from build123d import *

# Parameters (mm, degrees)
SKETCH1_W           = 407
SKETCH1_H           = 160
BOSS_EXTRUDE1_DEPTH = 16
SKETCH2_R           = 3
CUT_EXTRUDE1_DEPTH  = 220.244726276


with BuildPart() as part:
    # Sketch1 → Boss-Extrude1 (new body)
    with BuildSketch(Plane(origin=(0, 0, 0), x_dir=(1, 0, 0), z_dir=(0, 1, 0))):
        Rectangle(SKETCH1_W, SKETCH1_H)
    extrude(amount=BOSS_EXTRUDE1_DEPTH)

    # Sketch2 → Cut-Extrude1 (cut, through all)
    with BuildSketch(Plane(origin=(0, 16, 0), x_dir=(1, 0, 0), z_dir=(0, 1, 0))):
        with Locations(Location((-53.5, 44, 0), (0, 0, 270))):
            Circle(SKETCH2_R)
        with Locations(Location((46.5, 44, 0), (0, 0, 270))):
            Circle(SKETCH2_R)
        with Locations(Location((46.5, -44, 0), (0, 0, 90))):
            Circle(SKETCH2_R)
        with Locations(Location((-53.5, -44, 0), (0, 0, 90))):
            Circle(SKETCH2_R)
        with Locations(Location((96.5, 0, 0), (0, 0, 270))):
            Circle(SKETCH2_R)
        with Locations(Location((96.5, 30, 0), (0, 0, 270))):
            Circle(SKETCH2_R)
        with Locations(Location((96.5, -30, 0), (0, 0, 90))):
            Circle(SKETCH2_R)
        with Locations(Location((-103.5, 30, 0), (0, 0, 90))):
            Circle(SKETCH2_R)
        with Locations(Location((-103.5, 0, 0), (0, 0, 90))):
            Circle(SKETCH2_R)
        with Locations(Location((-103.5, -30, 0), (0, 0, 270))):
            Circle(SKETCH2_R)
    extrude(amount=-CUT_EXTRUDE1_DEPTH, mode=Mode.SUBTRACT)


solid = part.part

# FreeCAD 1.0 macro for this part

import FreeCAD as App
import Part
import Sketcher
Q = App.Units.Quantity

doc = App.newDocument("Part")
body = doc.addObject("PartDesign::Body", "Body")

# Sketch on XZ plane
sketch1 = body.newObject("Sketcher::SketchObject", "Sketch")
sketch1.AttachmentSupport = (doc.getObject("XZ_Plane"), [""])
sketch1.MapMode = "FlatFace"
sketch1.addGeometry(Part.LineSegment(App.Vector(-204, -80, 0), App.Vector(-204, 80, 0)), False)
sketch1.addGeometry(Part.LineSegment(App.Vector(-204, 80, 0), App.Vector(204, 80, 0)), False)
sketch1.addGeometry(Part.LineSegment(App.Vector(204, 80, 0), App.Vector(204, -80, 0)), False)
sketch1.addGeometry(Part.LineSegment(App.Vector(204, -80, 0), App.Vector(-204, -80, 0)), False)
sketch1.addConstraint(Sketcher.Constraint("Coincident", 0, 2, 1, 1))
sketch1.addConstraint(Sketcher.Constraint("Coincident", 1, 2, 2, 1))
sketch1.addConstraint(Sketcher.Constraint("Coincident", 2, 2, 3, 1))
sketch1.addConstraint(Sketcher.Constraint("Coincident", 3, 2, 0, 1))
sketch1.addConstraint(Sketcher.Constraint("Vertical", 0))
sketch1.addConstraint(Sketcher.Constraint("Horizontal", 1))
sketch1.addConstraint(Sketcher.Constraint("Vertical", 2))
sketch1.addConstraint(Sketcher.Constraint("Horizontal", 3))
sketch1.addConstraint(Sketcher.Constraint("Symmetric", 0, 2, 2, 2, -1, 1))
sketch1.addConstraint(Sketcher.Constraint("DistanceX", 1, 1, 1, 2, Q("407 mm")))
sketch1.addConstraint(Sketcher.Constraint("DistanceY", 0, 1, 0, 2, Q("160 mm")))
pad1 = body.newObject("PartDesign::Pad", "Pad")
pad1.Profile = sketch1
pad1.Length = 16
pad1.Reversed = True

# Sketch on XZ plane
sketch2 = body.newObject("Sketcher::SketchObject", "Sketch001")
sketch2.AttachmentSupport = (doc.getObject("XZ_Plane"), [""])
sketch2.MapMode = "FlatFace"
sketch2.AttachmentOffset = App.Placement(App.Vector(0, 0, -16), App.Rotation())
sketch2.addGeometry(Part.Circle(App.Vector(-53.5, -44, 0), App.Vector(0, 0, 1), 3), False)
sketch2.addGeometry(Part.Circle(App.Vector(46.5, -44, 0), App.Vector(0, 0, 1), 3), False)
sketch2.addGeometry(Part.Circle(App.Vector(46.5, 44, 0), App.Vector(0, 0, 1), 3), False)
sketch2.addGeometry(Part.Circle(App.Vector(-53.5, 44, 0), App.Vector(0, 0, 1), 3), False)
sketch2.addGeometry(Part.Circle(App.Vector(96.5, 0, 0), App.Vector(0, 0, 1), 3), False)
sketch2.addGeometry(Part.Circle(App.Vector(96.5, -30, 0), App.Vector(0, 0, 1), 3), False)
sketch2.addGeometry(Part.Circle(App.Vector(96.5, 30, 0), App.Vector(0, 0, 1), 3), False)
sketch2.addGeometry(Part.Circle(App.Vector(-103.5, -30, 0), App.Vector(0, 0, 1), 3), False)
sketch2.addGeometry(Part.Circle(App.Vector(-103.5, 0, 0), App.Vector(0, 0, 1), 3), False)
sketch2.addGeometry(Part.Circle(App.Vector(-103.5, 30, 0), App.Vector(0, 0, 1), 3), False)
sketch2.addConstraint(Sketcher.Constraint("Equal", 0, 1))
sketch2.addConstraint(Sketcher.Constraint("Equal", 1, 2))
sketch2.addConstraint(Sketcher.Constraint("Equal", 2, 3))
sketch2.addConstraint(Sketcher.Constraint("Equal", 3, 4))
sketch2.addConstraint(Sketcher.Constraint("Equal", 4, 5))
sketch2.addConstraint(Sketcher.Constraint("Equal", 5, 6))
sketch2.addConstraint(Sketcher.Constraint("Equal", 6, 7))
sketch2.addConstraint(Sketcher.Constraint("Equal", 7, 8))
sketch2.addConstraint(Sketcher.Constraint("Equal", 8, 9))
sketch2.addConstraint(Sketcher.Constraint("Symmetric", 1, 3, 2, 3, -1))
sketch2.addConstraint(Sketcher.Constraint("Symmetric", 0, 3, 3, 3, -1))
sketch2.addConstraint(Sketcher.Constraint("Symmetric", 5, 3, 6, 3, -1))
sketch2.addConstraint(Sketcher.Constraint("Symmetric", 7, 3, 9, 3, -1))
sketch2.addConstraint(Sketcher.Constraint("PointOnObject", 4, 3, -1))
sketch2.addConstraint(Sketcher.Constraint("PointOnObject", 8, 3, -1))
sketch2.addConstraint(Sketcher.Constraint("Horizontal", 0, 3, 1, 3))
sketch2.addConstraint(Sketcher.Constraint("Horizontal", 5, 3, 7, 3))
sketch2.addConstraint(Sketcher.Constraint("Vertical", 4, 3, 5, 3))
sketch2.addConstraint(Sketcher.Constraint("Vertical", 7, 3, 8, 3))
sketch2.addConstraint(Sketcher.Constraint("Diameter", 0, Q("6 mm")))
sketch2.addConstraint(Sketcher.Constraint("DistanceY", 0, 3, -1, 1, Q("44 mm")))
sketch2.addConstraint(Sketcher.Constraint("DistanceY", 5, 3, -1, 1, Q("30 mm")))
sketch2.addConstraint(Sketcher.Constraint("DistanceX", 0, 3, 1, 3, Q("100 mm")))
sketch2.addConstraint(Sketcher.Constraint("DistanceX", 1, 3, 4, 3, Q("50 mm")))
sketch2.addConstraint(Sketcher.Constraint("DistanceX", 7, 3, 0, 3, Q("50 mm")))
sketch2.addConstraint(Sketcher.Constraint("DistanceX", 0, 3, -1, 1, Q("53.5 mm")))
pocket1 = body.newObject("PartDesign::Pocket", "Pocket")
pocket1.Profile = sketch2
pocket1.Type = "ThroughAll"
pocket1.Reversed = True

doc.recompute()
